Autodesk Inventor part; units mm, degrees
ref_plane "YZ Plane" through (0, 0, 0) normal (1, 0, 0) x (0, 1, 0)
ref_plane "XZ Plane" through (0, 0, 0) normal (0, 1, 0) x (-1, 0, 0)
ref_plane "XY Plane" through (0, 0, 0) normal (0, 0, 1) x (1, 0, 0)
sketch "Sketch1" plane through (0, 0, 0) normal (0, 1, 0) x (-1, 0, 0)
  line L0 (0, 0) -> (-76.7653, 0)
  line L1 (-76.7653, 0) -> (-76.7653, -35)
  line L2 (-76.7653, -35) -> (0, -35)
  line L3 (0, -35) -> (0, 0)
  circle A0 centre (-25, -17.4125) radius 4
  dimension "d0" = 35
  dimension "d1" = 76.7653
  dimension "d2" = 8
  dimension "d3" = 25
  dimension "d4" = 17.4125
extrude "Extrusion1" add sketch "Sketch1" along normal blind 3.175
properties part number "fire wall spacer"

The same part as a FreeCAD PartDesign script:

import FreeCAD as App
import Part
import Sketcher

V = App.Vector


def add_polygon(sketch, points):
    """Adds a closed chain of lines whose ends are joined by coincident constraints."""
    first, n = sketch.GeometryCount, len(points)
    for a, b in zip(points, points[1:] + points[:1]):
        sketch.addGeometry(Part.LineSegment(App.Vector(*a, 0), App.Vector(*b, 0)), False)
    for i in range(n):
        sketch.addConstraint(Sketcher.Constraint("Coincident", first + i, 2, first + (i + 1) % n, 1))

doc = App.newDocument("Part")
body = doc.addObject("PartDesign::Body", "Body")

# Sketch on XZ plane
sketch1 = body.newObject("Sketcher::SketchObject", "Sketch")
sketch1.AttachmentSupport = (doc.getObject("XZ_Plane"), [""])
sketch1.MapMode = "FlatFace"
add_polygon(sketch1, [(0, -35), (0, 0), (76.8, 0), (76.8, -35)])  # lines 0-3
sketch1.addGeometry(Part.Circle(V(25, -17.4, 0), V(0, 0, 1), 4), False)  # 4
sketch1.addConstraint(Sketcher.Constraint("Vertical", 0))
sketch1.addConstraint(Sketcher.Constraint("Horizontal", 1))
sketch1.addConstraint(Sketcher.Constraint("Vertical", 2))
sketch1.addConstraint(Sketcher.Constraint("Horizontal", 3))
sketch1.addConstraint(Sketcher.Constraint("Coincident", 0, 2, -1, 1))
sketch1.addConstraint(Sketcher.Constraint("Diameter", 4, 8.0))
sketch1.addConstraint(Sketcher.Constraint("DistanceY", 0, 1, 0, 2, 35.0))
sketch1.addConstraint(Sketcher.Constraint("DistanceX", -1, 1, 4, 3, 25.0))
sketch1.addConstraint(Sketcher.Constraint("DistanceX", 1, 1, 1, 2, 76.7653))
sketch1.addConstraint(Sketcher.Constraint("DistanceY", 4, 3, -1, 1, 17.4125))
pad1 = body.newObject("PartDesign::Pad", "Pad")
pad1.Profile = sketch1
pad1.Length = 3.175
pad1.Reversed = True

doc.recompute()
